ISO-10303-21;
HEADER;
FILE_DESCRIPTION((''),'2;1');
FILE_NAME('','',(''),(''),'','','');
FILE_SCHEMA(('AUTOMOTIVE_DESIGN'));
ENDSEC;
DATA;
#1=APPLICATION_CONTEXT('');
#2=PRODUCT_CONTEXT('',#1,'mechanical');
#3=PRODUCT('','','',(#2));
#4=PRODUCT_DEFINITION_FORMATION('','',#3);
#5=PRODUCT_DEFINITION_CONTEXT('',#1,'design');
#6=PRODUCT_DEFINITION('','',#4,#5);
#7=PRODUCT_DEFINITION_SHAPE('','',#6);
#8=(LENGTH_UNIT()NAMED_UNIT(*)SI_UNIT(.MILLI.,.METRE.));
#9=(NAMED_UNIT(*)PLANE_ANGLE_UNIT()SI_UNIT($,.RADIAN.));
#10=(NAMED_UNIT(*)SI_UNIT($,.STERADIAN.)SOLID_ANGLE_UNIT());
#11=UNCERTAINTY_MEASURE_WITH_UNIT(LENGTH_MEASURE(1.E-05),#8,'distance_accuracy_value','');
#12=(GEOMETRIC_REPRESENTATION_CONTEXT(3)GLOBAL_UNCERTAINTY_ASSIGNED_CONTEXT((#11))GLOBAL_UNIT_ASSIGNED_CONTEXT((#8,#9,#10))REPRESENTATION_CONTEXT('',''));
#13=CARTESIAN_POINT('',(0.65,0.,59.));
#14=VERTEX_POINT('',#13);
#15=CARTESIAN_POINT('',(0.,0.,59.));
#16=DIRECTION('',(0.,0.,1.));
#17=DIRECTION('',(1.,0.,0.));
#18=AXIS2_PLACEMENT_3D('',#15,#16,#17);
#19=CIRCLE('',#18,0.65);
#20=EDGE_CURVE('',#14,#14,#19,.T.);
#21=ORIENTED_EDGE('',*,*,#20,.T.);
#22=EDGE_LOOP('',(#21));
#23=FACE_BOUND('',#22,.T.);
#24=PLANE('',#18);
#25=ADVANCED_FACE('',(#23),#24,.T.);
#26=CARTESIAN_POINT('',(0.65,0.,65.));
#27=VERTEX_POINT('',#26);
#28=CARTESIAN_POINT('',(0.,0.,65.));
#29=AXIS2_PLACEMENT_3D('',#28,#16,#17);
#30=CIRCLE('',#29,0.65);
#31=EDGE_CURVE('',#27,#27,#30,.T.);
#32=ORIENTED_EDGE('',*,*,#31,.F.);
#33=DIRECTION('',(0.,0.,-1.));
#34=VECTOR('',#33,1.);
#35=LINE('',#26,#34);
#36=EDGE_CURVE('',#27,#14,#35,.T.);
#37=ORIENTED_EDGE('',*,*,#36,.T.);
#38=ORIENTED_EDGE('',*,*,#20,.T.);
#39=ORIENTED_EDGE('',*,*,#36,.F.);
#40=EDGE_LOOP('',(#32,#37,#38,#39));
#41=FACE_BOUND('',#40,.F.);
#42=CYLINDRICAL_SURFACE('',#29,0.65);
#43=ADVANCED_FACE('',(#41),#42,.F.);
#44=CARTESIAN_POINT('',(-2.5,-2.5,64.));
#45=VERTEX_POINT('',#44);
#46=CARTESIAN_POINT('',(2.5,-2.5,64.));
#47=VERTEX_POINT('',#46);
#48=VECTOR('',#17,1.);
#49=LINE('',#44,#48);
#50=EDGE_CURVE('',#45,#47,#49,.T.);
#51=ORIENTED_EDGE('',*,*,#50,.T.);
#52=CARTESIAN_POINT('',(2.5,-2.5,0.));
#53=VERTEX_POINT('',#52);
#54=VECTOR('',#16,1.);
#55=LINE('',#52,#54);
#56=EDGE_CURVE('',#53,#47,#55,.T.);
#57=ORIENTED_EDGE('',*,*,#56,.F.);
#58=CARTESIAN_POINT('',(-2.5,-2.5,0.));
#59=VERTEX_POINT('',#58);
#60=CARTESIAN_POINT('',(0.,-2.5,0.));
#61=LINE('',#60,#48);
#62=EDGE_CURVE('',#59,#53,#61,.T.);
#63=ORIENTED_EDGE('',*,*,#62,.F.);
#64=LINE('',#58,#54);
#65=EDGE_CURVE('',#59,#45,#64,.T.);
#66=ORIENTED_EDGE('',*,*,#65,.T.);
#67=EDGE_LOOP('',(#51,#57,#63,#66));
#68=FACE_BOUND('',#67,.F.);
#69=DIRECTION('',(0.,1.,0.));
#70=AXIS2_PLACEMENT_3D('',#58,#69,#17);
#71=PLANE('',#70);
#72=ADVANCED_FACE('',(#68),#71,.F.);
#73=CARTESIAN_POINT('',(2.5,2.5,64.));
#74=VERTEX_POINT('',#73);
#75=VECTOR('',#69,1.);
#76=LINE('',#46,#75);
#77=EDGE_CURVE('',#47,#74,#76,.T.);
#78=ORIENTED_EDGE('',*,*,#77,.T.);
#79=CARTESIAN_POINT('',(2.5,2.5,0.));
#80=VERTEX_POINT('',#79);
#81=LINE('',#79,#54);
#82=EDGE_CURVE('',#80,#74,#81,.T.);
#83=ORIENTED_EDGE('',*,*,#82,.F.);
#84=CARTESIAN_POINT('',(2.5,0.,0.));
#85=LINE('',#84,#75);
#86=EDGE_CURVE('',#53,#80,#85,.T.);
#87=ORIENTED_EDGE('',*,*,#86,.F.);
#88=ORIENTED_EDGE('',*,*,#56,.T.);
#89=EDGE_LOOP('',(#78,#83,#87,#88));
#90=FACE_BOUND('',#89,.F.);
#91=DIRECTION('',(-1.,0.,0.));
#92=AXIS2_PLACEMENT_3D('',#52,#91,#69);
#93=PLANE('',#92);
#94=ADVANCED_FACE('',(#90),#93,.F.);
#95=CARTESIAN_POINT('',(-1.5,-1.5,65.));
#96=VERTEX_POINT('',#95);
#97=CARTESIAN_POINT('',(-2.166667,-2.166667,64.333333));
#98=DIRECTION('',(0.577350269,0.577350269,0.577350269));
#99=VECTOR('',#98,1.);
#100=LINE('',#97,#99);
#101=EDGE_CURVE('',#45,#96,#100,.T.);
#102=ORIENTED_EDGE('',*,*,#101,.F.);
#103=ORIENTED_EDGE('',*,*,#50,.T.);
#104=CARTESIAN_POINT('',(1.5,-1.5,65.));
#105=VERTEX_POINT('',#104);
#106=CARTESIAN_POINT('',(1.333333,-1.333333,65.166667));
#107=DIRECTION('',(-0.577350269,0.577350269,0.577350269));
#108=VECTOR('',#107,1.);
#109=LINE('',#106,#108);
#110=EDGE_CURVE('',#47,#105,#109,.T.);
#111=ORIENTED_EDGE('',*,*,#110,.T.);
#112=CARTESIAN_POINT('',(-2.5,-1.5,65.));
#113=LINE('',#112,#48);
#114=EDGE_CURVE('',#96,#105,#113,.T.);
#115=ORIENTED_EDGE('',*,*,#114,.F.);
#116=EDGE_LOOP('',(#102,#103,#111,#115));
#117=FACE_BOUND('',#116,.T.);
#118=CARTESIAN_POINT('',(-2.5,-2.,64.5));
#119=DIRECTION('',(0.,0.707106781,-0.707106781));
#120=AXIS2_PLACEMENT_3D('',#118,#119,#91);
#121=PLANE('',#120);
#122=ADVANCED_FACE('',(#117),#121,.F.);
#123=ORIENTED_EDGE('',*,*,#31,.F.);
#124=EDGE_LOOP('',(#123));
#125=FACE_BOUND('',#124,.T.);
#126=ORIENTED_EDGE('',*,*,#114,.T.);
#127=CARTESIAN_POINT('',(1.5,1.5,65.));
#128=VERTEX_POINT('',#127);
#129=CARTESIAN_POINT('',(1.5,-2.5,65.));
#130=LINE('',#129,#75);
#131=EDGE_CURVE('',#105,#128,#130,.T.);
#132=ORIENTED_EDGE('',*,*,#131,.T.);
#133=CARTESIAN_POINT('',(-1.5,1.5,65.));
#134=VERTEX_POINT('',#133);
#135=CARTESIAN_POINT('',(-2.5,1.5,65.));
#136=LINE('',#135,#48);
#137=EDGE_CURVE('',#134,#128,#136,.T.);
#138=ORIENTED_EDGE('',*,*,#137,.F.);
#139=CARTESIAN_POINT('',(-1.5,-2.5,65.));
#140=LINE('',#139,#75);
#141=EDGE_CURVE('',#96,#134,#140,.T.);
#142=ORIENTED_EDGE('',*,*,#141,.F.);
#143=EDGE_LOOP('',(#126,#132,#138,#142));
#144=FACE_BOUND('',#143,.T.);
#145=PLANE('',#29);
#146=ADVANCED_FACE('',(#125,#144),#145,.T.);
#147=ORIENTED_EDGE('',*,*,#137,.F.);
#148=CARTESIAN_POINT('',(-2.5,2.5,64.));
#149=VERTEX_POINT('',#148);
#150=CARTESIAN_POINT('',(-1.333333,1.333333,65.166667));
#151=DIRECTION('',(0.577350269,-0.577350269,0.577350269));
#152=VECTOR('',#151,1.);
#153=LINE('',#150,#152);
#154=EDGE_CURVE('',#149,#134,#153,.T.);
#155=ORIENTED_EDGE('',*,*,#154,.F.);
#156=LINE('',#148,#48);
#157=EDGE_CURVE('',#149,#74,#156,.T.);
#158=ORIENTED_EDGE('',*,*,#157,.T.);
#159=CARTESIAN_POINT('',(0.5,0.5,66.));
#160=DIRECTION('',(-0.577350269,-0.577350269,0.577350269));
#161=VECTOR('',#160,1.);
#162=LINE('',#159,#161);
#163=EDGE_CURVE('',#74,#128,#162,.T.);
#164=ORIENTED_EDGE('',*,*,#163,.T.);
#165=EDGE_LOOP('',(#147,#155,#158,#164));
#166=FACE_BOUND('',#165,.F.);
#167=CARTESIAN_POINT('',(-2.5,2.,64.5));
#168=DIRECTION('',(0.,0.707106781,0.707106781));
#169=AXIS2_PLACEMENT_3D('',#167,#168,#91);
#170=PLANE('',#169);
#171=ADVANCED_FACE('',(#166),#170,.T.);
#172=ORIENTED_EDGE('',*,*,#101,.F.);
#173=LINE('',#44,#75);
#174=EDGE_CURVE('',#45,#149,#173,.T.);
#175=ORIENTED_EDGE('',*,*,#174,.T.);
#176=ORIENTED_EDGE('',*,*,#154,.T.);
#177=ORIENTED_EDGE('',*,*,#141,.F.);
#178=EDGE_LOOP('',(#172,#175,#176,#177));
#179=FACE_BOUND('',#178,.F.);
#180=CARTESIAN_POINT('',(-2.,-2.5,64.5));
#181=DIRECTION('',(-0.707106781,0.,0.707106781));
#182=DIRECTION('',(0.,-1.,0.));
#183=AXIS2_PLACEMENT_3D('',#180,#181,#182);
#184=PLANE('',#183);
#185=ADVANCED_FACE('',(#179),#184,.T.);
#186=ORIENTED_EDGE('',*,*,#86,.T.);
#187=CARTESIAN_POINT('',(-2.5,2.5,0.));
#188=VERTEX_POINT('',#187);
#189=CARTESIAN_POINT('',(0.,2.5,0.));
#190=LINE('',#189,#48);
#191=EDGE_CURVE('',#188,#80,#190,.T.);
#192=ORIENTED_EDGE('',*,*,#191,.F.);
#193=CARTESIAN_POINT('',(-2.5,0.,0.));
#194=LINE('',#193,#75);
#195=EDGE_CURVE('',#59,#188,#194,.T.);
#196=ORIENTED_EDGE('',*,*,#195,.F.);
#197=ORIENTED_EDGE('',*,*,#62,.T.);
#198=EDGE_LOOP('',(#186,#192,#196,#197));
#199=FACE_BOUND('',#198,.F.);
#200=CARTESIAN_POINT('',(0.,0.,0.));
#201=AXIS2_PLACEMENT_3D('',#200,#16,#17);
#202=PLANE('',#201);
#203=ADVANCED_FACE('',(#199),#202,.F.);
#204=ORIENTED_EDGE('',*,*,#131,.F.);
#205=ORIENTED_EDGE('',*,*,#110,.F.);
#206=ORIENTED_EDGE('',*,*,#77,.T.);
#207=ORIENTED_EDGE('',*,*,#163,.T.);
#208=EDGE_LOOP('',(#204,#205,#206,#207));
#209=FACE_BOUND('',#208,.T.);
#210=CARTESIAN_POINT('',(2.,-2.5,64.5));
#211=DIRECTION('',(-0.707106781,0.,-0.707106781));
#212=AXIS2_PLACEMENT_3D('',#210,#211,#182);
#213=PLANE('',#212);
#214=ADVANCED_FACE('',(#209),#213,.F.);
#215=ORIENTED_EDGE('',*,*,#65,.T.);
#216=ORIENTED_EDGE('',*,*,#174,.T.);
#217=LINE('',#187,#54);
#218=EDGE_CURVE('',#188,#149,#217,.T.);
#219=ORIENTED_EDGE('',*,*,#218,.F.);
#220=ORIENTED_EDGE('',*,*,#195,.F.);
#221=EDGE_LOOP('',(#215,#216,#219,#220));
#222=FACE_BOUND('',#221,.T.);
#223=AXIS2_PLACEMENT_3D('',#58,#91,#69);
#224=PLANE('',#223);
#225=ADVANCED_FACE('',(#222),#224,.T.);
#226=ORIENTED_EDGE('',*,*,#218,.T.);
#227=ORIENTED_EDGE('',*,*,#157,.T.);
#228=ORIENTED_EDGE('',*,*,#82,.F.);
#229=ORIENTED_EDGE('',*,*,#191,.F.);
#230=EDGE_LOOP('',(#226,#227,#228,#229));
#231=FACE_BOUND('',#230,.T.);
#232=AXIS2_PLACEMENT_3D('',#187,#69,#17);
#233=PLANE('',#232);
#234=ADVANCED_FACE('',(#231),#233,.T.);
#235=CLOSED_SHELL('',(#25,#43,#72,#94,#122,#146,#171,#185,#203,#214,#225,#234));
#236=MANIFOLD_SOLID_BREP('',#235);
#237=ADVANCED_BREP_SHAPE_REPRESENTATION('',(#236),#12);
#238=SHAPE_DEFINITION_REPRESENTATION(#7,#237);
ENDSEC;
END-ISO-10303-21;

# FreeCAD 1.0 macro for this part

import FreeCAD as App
import Part
import Sketcher

V = App.Vector


def edges_at(feature, points):
    """Names of the edges that pass closest to the given points."""
    edges = feature.Shape.Edges
    near = lambda p: min(range(len(edges)), key=lambda i: edges[i].distToShape(Part.Vertex(*p))[0])
    return sorted({f"Edge{near(p) + 1}" for p in points})


def add_polygon(sketch, points):
    """Adds a closed chain of lines whose ends are joined by coincident constraints."""
    first, n = sketch.GeometryCount, len(points)
    for a, b in zip(points, points[1:] + points[:1]):
        sketch.addGeometry(Part.LineSegment(App.Vector(*a, 0), App.Vector(*b, 0)), False)
    for i in range(n):
        sketch.addConstraint(Sketcher.Constraint("Coincident", first + i, 2, first + (i + 1) % n, 1))

doc = App.newDocument("Part")
body = doc.addObject("PartDesign::Body", "Body")

sketch1 = doc.addObject("Sketcher::SketchObject", "Sketch")
body.addObject(sketch1)
sketch1.AttachmentSupport = (doc.XY_Plane, [""])
sketch1.MapMode = "FlatFace"
add_polygon(sketch1, [(-2.5, 2.5), (-2.5, -2.5), (2.5, -2.5), (2.5, 2.5)])
sketch1.addConstraint([
    Sketcher.Constraint("Vertical", 0),
    Sketcher.Constraint("Horizontal", 1),
    Sketcher.Constraint("Vertical", 2),
    Sketcher.Constraint("Horizontal", 3),
    Sketcher.Constraint("Symmetric", 0, 2, 2, 2, -1, 1),
    Sketcher.Constraint("Equal", 3, 0),
    Sketcher.Constraint("DistanceX", 1, 1, 1, 2, 5.0),
])
pad1 = doc.addObject("PartDesign::Pad", "Pad")
body.addObject(pad1)
pad1.Profile = sketch1
pad1.Length = 65
doc.recompute()

chamfer = doc.addObject("PartDesign::Chamfer", "Chamfer")
body.addObject(chamfer)
chamfer.Base = (pad1, edges_at(pad1, [
    (0, -2.5, 65),
    (2.5, 0, 65),
    (0, 2.5, 65),
    (-2.5, 0, 65),
]))
chamfer.Size = 1

sketch2 = doc.addObject("Sketcher::SketchObject", "Sketch001")
body.addObject(sketch2)
sketch2.AttachmentSupport = (doc.XY_Plane, [""])
sketch2.MapMode = "FlatFace"
sketch2.AttachmentOffset = App.Placement(V(0, 0, 65), App.Rotation())
sketch2.addGeometry(Part.Circle(V(0, 0, 0), V(0, 0, 1), 0.65), False)
sketch2.addConstraint([
    Sketcher.Constraint("Coincident", 0, 3, -1, 1),
    Sketcher.Constraint("Diameter", 0, 1.3),
])
pocket1 = doc.addObject("PartDesign::Pocket", "Pocket")
body.addObject(pocket1)
pocket1.Profile = sketch2
pocket1.Length = 6

doc.recompute()
